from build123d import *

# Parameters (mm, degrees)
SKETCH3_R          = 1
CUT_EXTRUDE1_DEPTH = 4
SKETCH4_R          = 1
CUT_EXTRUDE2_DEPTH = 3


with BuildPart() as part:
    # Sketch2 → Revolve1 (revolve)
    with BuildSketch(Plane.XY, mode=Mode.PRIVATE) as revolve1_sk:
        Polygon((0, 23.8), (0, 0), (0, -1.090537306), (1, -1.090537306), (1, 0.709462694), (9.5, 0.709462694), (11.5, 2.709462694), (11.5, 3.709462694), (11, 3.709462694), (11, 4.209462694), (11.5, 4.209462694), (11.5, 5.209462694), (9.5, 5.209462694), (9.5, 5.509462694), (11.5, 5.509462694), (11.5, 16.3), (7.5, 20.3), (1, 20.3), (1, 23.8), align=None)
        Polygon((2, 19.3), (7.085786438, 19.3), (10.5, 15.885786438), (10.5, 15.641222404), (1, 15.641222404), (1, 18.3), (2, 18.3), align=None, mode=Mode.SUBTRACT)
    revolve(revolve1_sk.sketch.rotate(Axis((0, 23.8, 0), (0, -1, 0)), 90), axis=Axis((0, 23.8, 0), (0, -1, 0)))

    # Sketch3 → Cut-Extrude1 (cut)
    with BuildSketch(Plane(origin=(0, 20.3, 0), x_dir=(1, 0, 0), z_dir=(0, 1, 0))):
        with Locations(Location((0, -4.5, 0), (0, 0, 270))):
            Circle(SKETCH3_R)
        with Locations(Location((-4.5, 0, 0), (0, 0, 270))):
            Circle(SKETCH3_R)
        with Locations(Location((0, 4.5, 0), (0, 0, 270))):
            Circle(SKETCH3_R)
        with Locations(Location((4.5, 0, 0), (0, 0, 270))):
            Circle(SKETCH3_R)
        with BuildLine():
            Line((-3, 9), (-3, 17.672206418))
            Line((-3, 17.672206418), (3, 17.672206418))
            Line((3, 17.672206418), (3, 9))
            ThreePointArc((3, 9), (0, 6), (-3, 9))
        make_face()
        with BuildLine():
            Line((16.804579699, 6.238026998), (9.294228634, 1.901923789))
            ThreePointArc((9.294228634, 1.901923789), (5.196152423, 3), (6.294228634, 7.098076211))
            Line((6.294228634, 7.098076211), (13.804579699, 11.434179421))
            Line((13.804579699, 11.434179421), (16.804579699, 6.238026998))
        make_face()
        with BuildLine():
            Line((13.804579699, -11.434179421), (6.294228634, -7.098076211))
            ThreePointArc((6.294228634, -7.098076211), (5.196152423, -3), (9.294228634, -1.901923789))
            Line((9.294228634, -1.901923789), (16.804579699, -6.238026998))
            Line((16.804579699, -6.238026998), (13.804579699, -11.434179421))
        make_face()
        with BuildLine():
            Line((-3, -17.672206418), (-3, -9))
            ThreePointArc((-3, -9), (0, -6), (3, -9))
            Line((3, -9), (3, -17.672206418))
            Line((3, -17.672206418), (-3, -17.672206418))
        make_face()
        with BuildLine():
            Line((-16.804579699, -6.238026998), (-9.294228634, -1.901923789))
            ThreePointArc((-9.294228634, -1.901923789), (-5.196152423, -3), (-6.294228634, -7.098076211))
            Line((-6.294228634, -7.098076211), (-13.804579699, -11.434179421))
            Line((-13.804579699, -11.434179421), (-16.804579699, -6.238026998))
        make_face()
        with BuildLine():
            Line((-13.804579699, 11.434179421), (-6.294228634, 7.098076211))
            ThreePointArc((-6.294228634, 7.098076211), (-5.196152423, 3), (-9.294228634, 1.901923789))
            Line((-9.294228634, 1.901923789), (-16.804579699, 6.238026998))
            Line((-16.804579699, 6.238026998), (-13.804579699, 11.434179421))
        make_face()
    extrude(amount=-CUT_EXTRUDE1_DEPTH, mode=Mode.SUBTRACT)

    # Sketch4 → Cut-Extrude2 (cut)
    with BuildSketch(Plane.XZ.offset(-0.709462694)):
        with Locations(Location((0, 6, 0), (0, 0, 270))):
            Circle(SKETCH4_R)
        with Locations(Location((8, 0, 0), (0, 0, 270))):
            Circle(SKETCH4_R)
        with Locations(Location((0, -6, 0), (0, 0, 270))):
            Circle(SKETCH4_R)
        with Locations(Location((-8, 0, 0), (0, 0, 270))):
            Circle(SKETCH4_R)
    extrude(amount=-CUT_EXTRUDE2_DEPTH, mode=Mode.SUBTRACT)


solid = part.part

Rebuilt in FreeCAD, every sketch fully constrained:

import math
import FreeCAD as App
import Part
import Sketcher
Q = App.Units.Quantity


def add_polygon(sketch, points):
    """Adds a closed chain of lines whose ends are joined by coincident constraints."""
    first, n = sketch.GeometryCount, len(points)
    for a, b in zip(points, points[1:] + points[:1]):
        sketch.addGeometry(Part.LineSegment(App.Vector(*a, 0), App.Vector(*b, 0)), False)
    for i in range(n):
        sketch.addConstraint(Sketcher.Constraint("Coincident", first + i, 2, first + (i + 1) % n, 1))

doc = App.newDocument("Part")
body = doc.addObject("PartDesign::Body", "Body")

# Sketch on XY plane
sketch1 = body.newObject("Sketcher::SketchObject", "Sketch")
sketch1.AttachmentSupport = (doc.getObject("XY_Plane"), [""])
sketch1.MapMode = "FlatFace"
add_polygon(sketch1, [(0, 23.8), (0, -1.09), (1, -1.09), (1, 0.71), (9.5, 0.71), (11.5, 2.71), (11.5, 3.71), (11, 3.71), (11, 4.21), (11.5, 4.21), (11.5, 5.21), (9.5, 5.21), (9.5, 5.51), (11.5, 5.51), (11.5, 16.3), (7.5, 20.3), (1, 20.3), (1, 23.8)])  # lines 0-17
add_polygon(sketch1, [(2, 18.3), (2, 19.3), (7.09, 19.3), (10.5, 15.89), (10.5, 15.64), (1, 15.64), (1, 18.3)])  # lines 18-24
sketch1.addConstraint(Sketcher.Constraint("Vertical", 0))
sketch1.addConstraint(Sketcher.Constraint("Horizontal", 1))
sketch1.addConstraint(Sketcher.Constraint("Vertical", 2))
sketch1.addConstraint(Sketcher.Constraint("Horizontal", 3))
sketch1.addConstraint(Sketcher.Constraint("Vertical", 5))
sketch1.addConstraint(Sketcher.Constraint("Horizontal", 6))
sketch1.addConstraint(Sketcher.Constraint("Vertical", 7))
sketch1.addConstraint(Sketcher.Constraint("Horizontal", 8))
sketch1.addConstraint(Sketcher.Constraint("Vertical", 9))
sketch1.addConstraint(Sketcher.Constraint("Horizontal", 10))
sketch1.addConstraint(Sketcher.Constraint("Vertical", 11))
sketch1.addConstraint(Sketcher.Constraint("Horizontal", 12))
sketch1.addConstraint(Sketcher.Constraint("Vertical", 13))
sketch1.addConstraint(Sketcher.Constraint("Horizontal", 15))
sketch1.addConstraint(Sketcher.Constraint("Vertical", 16))
sketch1.addConstraint(Sketcher.Constraint("Horizontal", 17))
sketch1.addConstraint(Sketcher.Constraint("Vertical", 18))
sketch1.addConstraint(Sketcher.Constraint("Horizontal", 19))
sketch1.addConstraint(Sketcher.Constraint("Vertical", 21))
sketch1.addConstraint(Sketcher.Constraint("Horizontal", 22))
sketch1.addConstraint(Sketcher.Constraint("Vertical", 23))
sketch1.addConstraint(Sketcher.Constraint("Horizontal", 24))
sketch1.addConstraint(Sketcher.Constraint("PointOnObject", 0, 2, -2))
sketch1.addConstraint(Sketcher.Constraint("Perpendicular", 4, 14))
sketch1.addConstraint(Sketcher.Constraint("Parallel", 14, 20))
sketch1.addConstraint(Sketcher.Constraint("Vertical", 5, 2, 8, 2))
sketch1.addConstraint(Sketcher.Constraint("Vertical", 3, 2, 10, 2))
sketch1.addConstraint(Sketcher.Constraint("Vertical", 9, 2, 12, 2))
sketch1.addConstraint(Sketcher.Constraint("Vertical", 2, 2, 15, 2))
sketch1.addConstraint(Sketcher.Constraint("Vertical", 16, 2, 22, 2))
sketch1.addConstraint(Sketcher.Constraint("Equal", 17, 24))
sketch1.addConstraint(Sketcher.Constraint("Equal", 24, 5))
sketch1.addConstraint(Sketcher.Constraint("Equal", 8, 7))
sketch1.addConstraint(Sketcher.Constraint("Equal", 5, 9))
sketch1.addConstraint(Sketcher.Constraint("Equal", 9, 18))
sketch1.addConstraint(Sketcher.Constraint("DistanceX", 1, 1, 1, 2, Q("1 mm")))
sketch1.addConstraint(Sketcher.Constraint("DistanceX", 10, 2, 10, 1, Q("2 mm")))
sketch1.addConstraint(Sketcher.Constraint("Angle", 4, Q("45 deg")))
sketch1.addConstraint(Sketcher.Constraint("DistanceX", 3, 1, 3, 2, Q("8.5 mm")))
sketch1.addConstraint(Sketcher.Constraint("DistanceX", 6, 2, 6, 1, Q("0.5 mm")))
sketch1.addConstraint(Sketcher.Constraint("DistanceX", 15, 2, 15, 1, Q("6.5 mm")))
sketch1.addConstraint(Sketcher.Constraint("DistanceX", 22, 2, 22, 1, Q("9.5 mm")))
sketch1.addConstraint(Sketcher.Constraint("DistanceY", 2, 1, 2, 2, Q("1.8 mm")))
sketch1.addConstraint(Sketcher.Constraint("DistanceY", 11, 1, 11, 2, Q("0.3 mm")))
sketch1.addConstraint(Sketcher.Constraint("DistanceY", 16, 1, 16, 2, Q("3.5 mm")))
sketch1.addConstraint(Sketcher.Constraint("DistanceY", 18, 2, 15, 2, Q("1 mm")))
sketch1.addConstraint(Sketcher.Constraint("DistanceY", -1, 1, 13, 2, Q("16.3 mm")))
sketch1.addConstraint(Sketcher.Constraint("DistanceX", 19, 1, 19, 2, Q("5.085786 mm")))
sketch1.addConstraint(Sketcher.Constraint("DistanceY", 0, 2, 0, 1, Q("24.890537 mm")))
sketch1.addConstraint(Sketcher.Constraint("DistanceY", 21, 2, 21, 1, Q("0.244564 mm")))
revolution = body.newObject("PartDesign::Revolution", "Revolution")
revolution.Profile = sketch1
revolution.ReferenceAxis = (sketch1, ["V_Axis"])
revolution.Angle = 360

# Sketch on XZ plane
sketch2 = body.newObject("Sketcher::SketchObject", "Sketch001")
sketch2.AttachmentSupport = (doc.getObject("XZ_Plane"), [""])
sketch2.MapMode = "FlatFace"
sketch2.AttachmentOffset = App.Placement(App.Vector(0, 0, -20.3), App.Rotation())
sketch2.addGeometry(Part.Circle(App.Vector(0, 4.5, 0), App.Vector(0, 0, 1), 1), False)
sketch2.addGeometry(Part.Circle(App.Vector(-4.5, 0, 0), App.Vector(0, 0, 1), 1), False)
sketch2.addGeometry(Part.Circle(App.Vector(0, -4.5, 0), App.Vector(0, 0, 1), 1), False)
sketch2.addGeometry(Part.Circle(App.Vector(4.5, 0, 0), App.Vector(0, 0, 1), 1), False)
sketch2.addGeometry(Part.LineSegment(App.Vector(-3, -17.7, 0), App.Vector(-3, -9, 0)), False)
sketch2.addGeometry(Part.ArcOfCircle(Part.Circle(App.Vector(0, -9, 0), App.Vector(0, 0, 1), 3), math.radians(0), math.radians(180)), False)
sketch2.addGeometry(Part.LineSegment(App.Vector(3, -9, 0), App.Vector(3, -17.7, 0)), False)
sketch2.addGeometry(Part.LineSegment(App.Vector(3, -17.7, 0), App.Vector(-3, -17.7, 0)), False)
sketch2.addGeometry(Part.LineSegment(App.Vector(9.3, -1.9, 0), App.Vector(16.8, -6.2, 0)), False)
sketch2.addGeometry(Part.LineSegment(App.Vector(16.8, -6.2, 0), App.Vector(13.8, -11.4, 0)), False)
sketch2.addGeometry(Part.LineSegment(App.Vector(13.8, -11.4, 0), App.Vector(6.3, -7.1, 0)), False)
sketch2.addGeometry(Part.ArcOfCircle(Part.Circle(App.Vector(7.8, -4.5, 0), App.Vector(0, 0, 1), 3), math.radians(60), math.radians(240)), False)
sketch2.addGeometry(Part.LineSegment(App.Vector(6.3, 7.1, 0), App.Vector(13.8, 11.4, 0)), False)
sketch2.addGeometry(Part.LineSegment(App.Vector(13.8, 11.4, 0), App.Vector(16.8, 6.2, 0)), False)
sketch2.addGeometry(Part.LineSegment(App.Vector(16.8, 6.2, 0), App.Vector(9.3, 1.9, 0)), False)
sketch2.addGeometry(Part.ArcOfCircle(Part.Circle(App.Vector(7.8, 4.5, 0), App.Vector(0, 0, 1), 3), math.radians(120), math.radians(300)), False)
sketch2.addGeometry(Part.LineSegment(App.Vector(-3, 9, 0), App.Vector(-3, 17.7, 0)), False)
sketch2.addGeometry(Part.LineSegment(App.Vector(-3, 17.7, 0), App.Vector(3, 17.7, 0)), False)
sketch2.addGeometry(Part.LineSegment(App.Vector(3, 17.7, 0), App.Vector(3, 9, 0)), False)
sketch2.addGeometry(Part.ArcOfCircle(Part.Circle(App.Vector(0, 9, 0), App.Vector(0, 0, 1), 3), math.radians(180), math.radians(360)), False)
sketch2.addGeometry(Part.LineSegment(App.Vector(-9.3, 1.9, 0), App.Vector(-16.8, 6.2, 0)), False)
sketch2.addGeometry(Part.LineSegment(App.Vector(-16.8, 6.2, 0), App.Vector(-13.8, 11.4, 0)), False)
sketch2.addGeometry(Part.LineSegment(App.Vector(-13.8, 11.4, 0), App.Vector(-6.3, 7.1, 0)), False)
sketch2.addGeometry(Part.ArcOfCircle(Part.Circle(App.Vector(-7.8, 4.5, 0), App.Vector(0, 0, 1), 3), math.radians(-120), math.radians(60)), False)
sketch2.addGeometry(Part.LineSegment(App.Vector(-6.3, -7.1, 0), App.Vector(-13.8, -11.4, 0)), False)
sketch2.addGeometry(Part.LineSegment(App.Vector(-13.8, -11.4, 0), App.Vector(-16.8, -6.2, 0)), False)
sketch2.addGeometry(Part.LineSegment(App.Vector(-16.8, -6.2, 0), App.Vector(-9.3, -1.9, 0)), False)
sketch2.addGeometry(Part.ArcOfCircle(Part.Circle(App.Vector(-7.8, -4.5, 0), App.Vector(0, 0, 1), 3), math.radians(-60), math.radians(120)), False)
sketch2.addConstraint(Sketcher.Constraint("Tangent", 4, 2, 5, 2))
sketch2.addConstraint(Sketcher.Constraint("Tangent", 5, 1, 6, 1))
sketch2.addConstraint(Sketcher.Constraint("Coincident", 6, 2, 7, 1))
sketch2.addConstraint(Sketcher.Constraint("Coincident", 7, 2, 4, 1))
sketch2.addConstraint(Sketcher.Constraint("Coincident", 8, 2, 9, 1))
sketch2.addConstraint(Sketcher.Constraint("Coincident", 9, 2, 10, 1))
sketch2.addConstraint(Sketcher.Constraint("Tangent", 10, 2, 11, 2))
sketch2.addConstraint(Sketcher.Constraint("Tangent", 11, 1, 8, 1))
sketch2.addConstraint(Sketcher.Constraint("Coincident", 12, 2, 13, 1))
sketch2.addConstraint(Sketcher.Constraint("Coincident", 13, 2, 14, 1))
sketch2.addConstraint(Sketcher.Constraint("Tangent", 14, 2, 15, 2))
sketch2.addConstraint(Sketcher.Constraint("Tangent", 15, 1, 12, 1))
sketch2.addConstraint(Sketcher.Constraint("Coincident", 16, 2, 17, 1))
sketch2.addConstraint(Sketcher.Constraint("Coincident", 17, 2, 18, 1))
sketch2.addConstraint(Sketcher.Constraint("Tangent", 18, 2, 19, 2))
sketch2.addConstraint(Sketcher.Constraint("Tangent", 19, 1, 16, 1))
sketch2.addConstraint(Sketcher.Constraint("Coincident", 20, 2, 21, 1))
sketch2.addConstraint(Sketcher.Constraint("Coincident", 21, 2, 22, 1))
sketch2.addConstraint(Sketcher.Constraint("Tangent", 22, 2, 23, 2))
sketch2.addConstraint(Sketcher.Constraint("Tangent", 23, 1, 20, 1))
sketch2.addConstraint(Sketcher.Constraint("Coincident", 24, 2, 25, 1))
sketch2.addConstraint(Sketcher.Constraint("Coincident", 25, 2, 26, 1))
sketch2.addConstraint(Sketcher.Constraint("Tangent", 26, 2, 27, 2))
sketch2.addConstraint(Sketcher.Constraint("Tangent", 27, 1, 24, 1))
sketch2.addConstraint(Sketcher.Constraint("Vertical", 4))
sketch2.addConstraint(Sketcher.Constraint("Vertical", 6))
sketch2.addConstraint(Sketcher.Constraint("Horizontal", 7))
sketch2.addConstraint(Sketcher.Constraint("Vertical", 16))
sketch2.addConstraint(Sketcher.Constraint("Horizontal", 17))
sketch2.addConstraint(Sketcher.Constraint("Vertical", 18))
sketch2.addConstraint(Sketcher.Constraint("Equal", 0, 1))
sketch2.addConstraint(Sketcher.Constraint("Equal", 1, 2))
sketch2.addConstraint(Sketcher.Constraint("Equal", 2, 3))
sketch2.addConstraint(Sketcher.Constraint("Equal", 5, 11))
sketch2.addConstraint(Sketcher.Constraint("Equal", 11, 15))
sketch2.addConstraint(Sketcher.Constraint("Equal", 15, 19))
sketch2.addConstraint(Sketcher.Constraint("Equal", 19, 23))
sketch2.addConstraint(Sketcher.Constraint("Equal", 23, 27))
sketch2.addConstraint(Sketcher.Constraint("Symmetric", 0, 3, 2, 3, -1, 1))
sketch2.addConstraint(Sketcher.Constraint("Symmetric", 1, 3, 3, 3, -1, 1))
sketch2.addConstraint(Sketcher.Constraint("Symmetric", 5, 3, 19, 3, -1, 1))
sketch2.addConstraint(Sketcher.Constraint("Symmetric", 11, 3, 23, 3, -1, 1))
sketch2.addConstraint(Sketcher.Constraint("Symmetric", 15, 3, 27, 3, -1, 1))
sketch2.addConstraint(Sketcher.Constraint("Symmetric", 8, 2, 20, 2, -1, 1))
sketch2.addConstraint(Sketcher.Constraint("Symmetric", 9, 2, 21, 2, -1, 1))
sketch2.addConstraint(Sketcher.Constraint("Symmetric", 12, 2, 24, 2, -1, 1))
sketch2.addConstraint(Sketcher.Constraint("Symmetric", 13, 2, 25, 2, -1, 1))
sketch2.addConstraint(Sketcher.Constraint("Symmetric", 15, 3, 23, 3, -2))
sketch2.addConstraint(Sketcher.Constraint("Symmetric", 13, 2, 20, 2, -2))
sketch2.addConstraint(Sketcher.Constraint("Symmetric", 12, 2, 21, 2, -2))
sketch2.addConstraint(Sketcher.Constraint("Symmetric", 7, 2, 16, 2, -1))
sketch2.addConstraint(Sketcher.Constraint("PointOnObject", 0, 3, -2))
sketch2.addConstraint(Sketcher.Constraint("PointOnObject", 1, 3, -1))
sketch2.addConstraint(Sketcher.Constraint("Perpendicular", 8, 9))
sketch2.addConstraint(Sketcher.Constraint("Perpendicular", 9, 10))
sketch2.addConstraint(Sketcher.Constraint("Horizontal", 2, 3, 11, 3))
sketch2.addConstraint(Sketcher.Constraint("Diameter", 0, Q("2 mm")))
sketch2.addConstraint(Sketcher.Constraint("Radius", 5, Q("3 mm")))
sketch2.addConstraint(Sketcher.Constraint("Angle", 8, Q("-30 deg")))
sketch2.addConstraint(Sketcher.Constraint("DistanceY", 5, 3, -1, 1, Q("9 mm")))
sketch2.addConstraint(Sketcher.Constraint("DistanceY", 2, 3, 0, 3, Q("9 mm")))
sketch2.addConstraint(Sketcher.Constraint("DistanceX", 1, 3, 3, 3, Q("9 mm")))
sketch2.addConstraint(Sketcher.Constraint("DistanceY", 4, 1, 4, 2, Q("8.672206 mm")))
sketch2.addConstraint(Sketcher.Constraint("DistanceX", -1, 1, 11, 3, Q("7.794229 mm")))
sketch2.addConstraint(Sketcher.Constraint("DistanceX", -1, 1, 8, 2, Q("16.80458 mm")))
pocket1 = body.newObject("PartDesign::Pocket", "Pocket")
pocket1.Profile = sketch2
pocket1.Length = 4
pocket1.Reversed = True

# Sketch on XZ plane
sketch3 = body.newObject("Sketcher::SketchObject", "Sketch002")
sketch3.AttachmentSupport = (doc.getObject("XZ_Plane"), [""])
sketch3.MapMode = "FlatFace"
sketch3.AttachmentOffset = App.Placement(App.Vector(0, 0, -0.709463), App.Rotation())
sketch3.addGeometry(Part.Circle(App.Vector(0, 6, 0), App.Vector(0, 0, 1), 1), False)
sketch3.addGeometry(Part.Circle(App.Vector(8, 0, 0), App.Vector(0, 0, 1), 1), False)
sketch3.addGeometry(Part.Circle(App.Vector(0, -6, 0), App.Vector(0, 0, 1), 1), False)
sketch3.addGeometry(Part.Circle(App.Vector(-8, 0, 0), App.Vector(0, 0, 1), 1), False)
sketch3.addConstraint(Sketcher.Constraint("Equal", 0, 1))
sketch3.addConstraint(Sketcher.Constraint("Equal", 1, 2))
sketch3.addConstraint(Sketcher.Constraint("Equal", 2, 3))
sketch3.addConstraint(Sketcher.Constraint("Symmetric", 0, 3, 2, 3, -1, 1))
sketch3.addConstraint(Sketcher.Constraint("Symmetric", 1, 3, 3, 3, -1, 1))
sketch3.addConstraint(Sketcher.Constraint("PointOnObject", 0, 3, -2))
sketch3.addConstraint(Sketcher.Constraint("PointOnObject", 1, 3, -1))
sketch3.addConstraint(Sketcher.Constraint("Diameter", 0, Q("2 mm")))
sketch3.addConstraint(Sketcher.Constraint("DistanceY", -1, 1, 0, 3, Q("6 mm")))
sketch3.addConstraint(Sketcher.Constraint("DistanceX", -1, 1, 1, 3, Q("8 mm")))
pocket2 = body.newObject("PartDesign::Pocket", "Pocket001")
pocket2.Profile = sketch3
pocket2.Length = 3

doc.recompute()
